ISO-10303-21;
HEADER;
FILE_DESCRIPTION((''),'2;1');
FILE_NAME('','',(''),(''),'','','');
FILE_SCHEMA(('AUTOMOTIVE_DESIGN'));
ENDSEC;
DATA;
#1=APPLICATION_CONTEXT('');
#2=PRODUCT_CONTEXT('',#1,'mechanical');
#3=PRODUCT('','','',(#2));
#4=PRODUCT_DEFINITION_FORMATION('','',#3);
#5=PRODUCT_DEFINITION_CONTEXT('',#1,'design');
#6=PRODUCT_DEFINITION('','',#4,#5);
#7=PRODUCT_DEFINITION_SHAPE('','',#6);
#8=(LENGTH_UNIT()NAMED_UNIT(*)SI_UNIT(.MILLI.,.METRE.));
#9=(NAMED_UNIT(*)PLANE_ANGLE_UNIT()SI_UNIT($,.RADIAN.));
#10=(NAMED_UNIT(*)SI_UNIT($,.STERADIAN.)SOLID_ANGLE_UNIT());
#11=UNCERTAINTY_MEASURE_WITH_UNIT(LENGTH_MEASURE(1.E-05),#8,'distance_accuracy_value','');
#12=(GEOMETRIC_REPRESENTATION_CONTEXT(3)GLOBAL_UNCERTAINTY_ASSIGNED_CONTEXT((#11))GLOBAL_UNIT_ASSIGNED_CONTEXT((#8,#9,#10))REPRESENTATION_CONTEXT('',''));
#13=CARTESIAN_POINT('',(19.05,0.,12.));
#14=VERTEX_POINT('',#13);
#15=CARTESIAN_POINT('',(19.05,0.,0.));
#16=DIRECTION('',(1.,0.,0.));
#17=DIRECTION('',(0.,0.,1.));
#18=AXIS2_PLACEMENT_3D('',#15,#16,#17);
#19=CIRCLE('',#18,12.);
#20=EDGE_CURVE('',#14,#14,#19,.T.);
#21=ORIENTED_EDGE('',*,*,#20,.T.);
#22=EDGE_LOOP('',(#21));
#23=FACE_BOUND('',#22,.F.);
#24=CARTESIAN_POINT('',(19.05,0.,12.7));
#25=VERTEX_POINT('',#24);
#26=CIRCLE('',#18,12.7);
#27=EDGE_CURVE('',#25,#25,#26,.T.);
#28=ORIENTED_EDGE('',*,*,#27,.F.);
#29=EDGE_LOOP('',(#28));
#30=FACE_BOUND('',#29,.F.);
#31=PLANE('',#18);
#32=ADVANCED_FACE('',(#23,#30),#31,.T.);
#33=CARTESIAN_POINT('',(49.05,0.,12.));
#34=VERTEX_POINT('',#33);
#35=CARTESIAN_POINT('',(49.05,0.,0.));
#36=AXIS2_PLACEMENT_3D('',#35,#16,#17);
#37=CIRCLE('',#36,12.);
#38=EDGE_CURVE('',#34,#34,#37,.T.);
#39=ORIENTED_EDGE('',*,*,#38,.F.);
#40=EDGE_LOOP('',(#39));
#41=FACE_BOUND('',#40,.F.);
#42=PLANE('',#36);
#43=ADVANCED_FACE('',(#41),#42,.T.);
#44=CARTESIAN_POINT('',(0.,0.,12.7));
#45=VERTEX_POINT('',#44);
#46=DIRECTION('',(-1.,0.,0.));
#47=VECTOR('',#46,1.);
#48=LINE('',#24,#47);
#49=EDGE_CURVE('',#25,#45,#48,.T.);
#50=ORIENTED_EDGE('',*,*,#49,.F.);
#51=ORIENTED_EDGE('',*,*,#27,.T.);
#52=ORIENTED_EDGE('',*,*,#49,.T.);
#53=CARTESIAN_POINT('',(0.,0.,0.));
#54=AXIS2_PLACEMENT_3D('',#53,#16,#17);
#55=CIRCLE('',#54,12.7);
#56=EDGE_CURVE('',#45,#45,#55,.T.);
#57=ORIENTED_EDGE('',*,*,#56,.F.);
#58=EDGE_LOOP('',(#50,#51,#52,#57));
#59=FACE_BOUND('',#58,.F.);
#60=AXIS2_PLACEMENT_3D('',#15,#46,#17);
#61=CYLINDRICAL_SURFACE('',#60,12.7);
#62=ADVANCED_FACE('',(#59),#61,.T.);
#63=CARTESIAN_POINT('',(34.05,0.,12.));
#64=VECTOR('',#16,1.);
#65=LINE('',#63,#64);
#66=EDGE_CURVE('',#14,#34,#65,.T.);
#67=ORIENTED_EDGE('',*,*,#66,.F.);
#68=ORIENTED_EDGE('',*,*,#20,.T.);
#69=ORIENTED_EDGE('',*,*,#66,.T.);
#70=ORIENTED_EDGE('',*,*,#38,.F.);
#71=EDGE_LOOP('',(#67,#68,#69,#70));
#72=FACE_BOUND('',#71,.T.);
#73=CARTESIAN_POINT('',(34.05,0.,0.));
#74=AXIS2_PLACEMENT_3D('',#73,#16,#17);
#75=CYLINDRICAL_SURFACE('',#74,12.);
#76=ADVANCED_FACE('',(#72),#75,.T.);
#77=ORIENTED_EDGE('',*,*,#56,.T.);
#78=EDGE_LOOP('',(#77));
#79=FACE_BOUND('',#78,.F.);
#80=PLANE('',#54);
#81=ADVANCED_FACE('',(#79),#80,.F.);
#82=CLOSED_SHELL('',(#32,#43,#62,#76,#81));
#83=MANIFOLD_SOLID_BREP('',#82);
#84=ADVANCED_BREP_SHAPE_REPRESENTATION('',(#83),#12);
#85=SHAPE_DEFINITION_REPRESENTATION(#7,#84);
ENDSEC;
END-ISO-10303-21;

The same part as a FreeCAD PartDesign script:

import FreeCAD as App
import Part
import Sketcher

V = App.Vector
Q = App.Units.Quantity

doc = App.newDocument("Part")
params = doc.addObject("Spreadsheet::Sheet", "Params")
for row, (alias, value) in enumerate([
    ("sketch1_width", "30 mm"),
    ("sketch1_height", "12 mm"),
    ("sketch1_height2", "12.7 mm"),
    ("sketch1_width2", "49.05 mm"),
    ("revolution_angle", "360 deg"),
], start=1):
    params.set(f"A{row}", alias)
    params.set(f"B{row}", "=" + value)
    params.setAlias(f"B{row}", alias)

body = doc.addObject("PartDesign::Body", "Body")

sketch1 = body.newObject("Sketcher::SketchObject", "Sketch")
sketch1.AttachmentSupport = (doc.getObject("XZ_Plane"), [""])
sketch1.MapMode = "FlatFace"
sketch1.addGeometry(Part.LineSegment(V(0, 12.7, 0), V(0, 0, 0)), False)
sketch1.addGeometry(Part.LineSegment(V(0, 0, 0), V(49, 0, 0)), False)
sketch1.addGeometry(Part.LineSegment(V(49, 0, 0), V(49, 12, 0)), False)
sketch1.addGeometry(Part.LineSegment(V(49, 12, 0), V(19.1, 12, 0)), False)
sketch1.addGeometry(Part.LineSegment(V(19.1, 12, 0), V(19.1, 12.7, 0)), False)
sketch1.addGeometry(Part.LineSegment(V(19.1, 12.7, 0), V(0, 12.7, 0)), False)
sketch1.addConstraint(Sketcher.Constraint("Coincident", 0, 2, 1, 1))
sketch1.addConstraint(Sketcher.Constraint("Coincident", 1, 2, 2, 1))
sketch1.addConstraint(Sketcher.Constraint("Coincident", 2, 2, 3, 1))
sketch1.addConstraint(Sketcher.Constraint("Coincident", 3, 2, 4, 1))
sketch1.addConstraint(Sketcher.Constraint("Coincident", 4, 2, 5, 1))
sketch1.addConstraint(Sketcher.Constraint("Coincident", 5, 2, 0, 1))
sketch1.addConstraint(Sketcher.Constraint("Vertical", 0))
sketch1.addConstraint(Sketcher.Constraint("Horizontal", 1))
sketch1.addConstraint(Sketcher.Constraint("Vertical", 2))
sketch1.addConstraint(Sketcher.Constraint("Horizontal", 3))
sketch1.addConstraint(Sketcher.Constraint("Vertical", 4))
sketch1.addConstraint(Sketcher.Constraint("Horizontal", 5))
sketch1.addConstraint(Sketcher.Constraint("Coincident", 0, 2, -1, 1))
sketch1.addConstraint(Sketcher.Constraint("DistanceX", 3, 2, 3, 1, Q("30 mm")))
sketch1.addConstraint(Sketcher.Constraint("DistanceY", 2, 1, 2, 2, Q("12 mm")))
sketch1.addConstraint(Sketcher.Constraint("DistanceY", 0, 2, 0, 1, Q("12.7 mm")))
sketch1.addConstraint(Sketcher.Constraint("DistanceX", 1, 1, 1, 2, Q("49.05 mm")))
sketch1.setExpression("Constraints[13]", "Params.sketch1_width")
sketch1.setExpression("Constraints[14]", "Params.sketch1_height")
sketch1.setExpression("Constraints[15]", "Params.sketch1_height2")
sketch1.setExpression("Constraints[16]", "Params.sketch1_width2")
revolution = body.newObject("PartDesign::Revolution", "Revolution")
revolution.Profile = sketch1
revolution.ReferenceAxis = (sketch1, ["H_Axis"])
revolution.setExpression("Angle", "Params.revolution_angle")

doc.recompute()
